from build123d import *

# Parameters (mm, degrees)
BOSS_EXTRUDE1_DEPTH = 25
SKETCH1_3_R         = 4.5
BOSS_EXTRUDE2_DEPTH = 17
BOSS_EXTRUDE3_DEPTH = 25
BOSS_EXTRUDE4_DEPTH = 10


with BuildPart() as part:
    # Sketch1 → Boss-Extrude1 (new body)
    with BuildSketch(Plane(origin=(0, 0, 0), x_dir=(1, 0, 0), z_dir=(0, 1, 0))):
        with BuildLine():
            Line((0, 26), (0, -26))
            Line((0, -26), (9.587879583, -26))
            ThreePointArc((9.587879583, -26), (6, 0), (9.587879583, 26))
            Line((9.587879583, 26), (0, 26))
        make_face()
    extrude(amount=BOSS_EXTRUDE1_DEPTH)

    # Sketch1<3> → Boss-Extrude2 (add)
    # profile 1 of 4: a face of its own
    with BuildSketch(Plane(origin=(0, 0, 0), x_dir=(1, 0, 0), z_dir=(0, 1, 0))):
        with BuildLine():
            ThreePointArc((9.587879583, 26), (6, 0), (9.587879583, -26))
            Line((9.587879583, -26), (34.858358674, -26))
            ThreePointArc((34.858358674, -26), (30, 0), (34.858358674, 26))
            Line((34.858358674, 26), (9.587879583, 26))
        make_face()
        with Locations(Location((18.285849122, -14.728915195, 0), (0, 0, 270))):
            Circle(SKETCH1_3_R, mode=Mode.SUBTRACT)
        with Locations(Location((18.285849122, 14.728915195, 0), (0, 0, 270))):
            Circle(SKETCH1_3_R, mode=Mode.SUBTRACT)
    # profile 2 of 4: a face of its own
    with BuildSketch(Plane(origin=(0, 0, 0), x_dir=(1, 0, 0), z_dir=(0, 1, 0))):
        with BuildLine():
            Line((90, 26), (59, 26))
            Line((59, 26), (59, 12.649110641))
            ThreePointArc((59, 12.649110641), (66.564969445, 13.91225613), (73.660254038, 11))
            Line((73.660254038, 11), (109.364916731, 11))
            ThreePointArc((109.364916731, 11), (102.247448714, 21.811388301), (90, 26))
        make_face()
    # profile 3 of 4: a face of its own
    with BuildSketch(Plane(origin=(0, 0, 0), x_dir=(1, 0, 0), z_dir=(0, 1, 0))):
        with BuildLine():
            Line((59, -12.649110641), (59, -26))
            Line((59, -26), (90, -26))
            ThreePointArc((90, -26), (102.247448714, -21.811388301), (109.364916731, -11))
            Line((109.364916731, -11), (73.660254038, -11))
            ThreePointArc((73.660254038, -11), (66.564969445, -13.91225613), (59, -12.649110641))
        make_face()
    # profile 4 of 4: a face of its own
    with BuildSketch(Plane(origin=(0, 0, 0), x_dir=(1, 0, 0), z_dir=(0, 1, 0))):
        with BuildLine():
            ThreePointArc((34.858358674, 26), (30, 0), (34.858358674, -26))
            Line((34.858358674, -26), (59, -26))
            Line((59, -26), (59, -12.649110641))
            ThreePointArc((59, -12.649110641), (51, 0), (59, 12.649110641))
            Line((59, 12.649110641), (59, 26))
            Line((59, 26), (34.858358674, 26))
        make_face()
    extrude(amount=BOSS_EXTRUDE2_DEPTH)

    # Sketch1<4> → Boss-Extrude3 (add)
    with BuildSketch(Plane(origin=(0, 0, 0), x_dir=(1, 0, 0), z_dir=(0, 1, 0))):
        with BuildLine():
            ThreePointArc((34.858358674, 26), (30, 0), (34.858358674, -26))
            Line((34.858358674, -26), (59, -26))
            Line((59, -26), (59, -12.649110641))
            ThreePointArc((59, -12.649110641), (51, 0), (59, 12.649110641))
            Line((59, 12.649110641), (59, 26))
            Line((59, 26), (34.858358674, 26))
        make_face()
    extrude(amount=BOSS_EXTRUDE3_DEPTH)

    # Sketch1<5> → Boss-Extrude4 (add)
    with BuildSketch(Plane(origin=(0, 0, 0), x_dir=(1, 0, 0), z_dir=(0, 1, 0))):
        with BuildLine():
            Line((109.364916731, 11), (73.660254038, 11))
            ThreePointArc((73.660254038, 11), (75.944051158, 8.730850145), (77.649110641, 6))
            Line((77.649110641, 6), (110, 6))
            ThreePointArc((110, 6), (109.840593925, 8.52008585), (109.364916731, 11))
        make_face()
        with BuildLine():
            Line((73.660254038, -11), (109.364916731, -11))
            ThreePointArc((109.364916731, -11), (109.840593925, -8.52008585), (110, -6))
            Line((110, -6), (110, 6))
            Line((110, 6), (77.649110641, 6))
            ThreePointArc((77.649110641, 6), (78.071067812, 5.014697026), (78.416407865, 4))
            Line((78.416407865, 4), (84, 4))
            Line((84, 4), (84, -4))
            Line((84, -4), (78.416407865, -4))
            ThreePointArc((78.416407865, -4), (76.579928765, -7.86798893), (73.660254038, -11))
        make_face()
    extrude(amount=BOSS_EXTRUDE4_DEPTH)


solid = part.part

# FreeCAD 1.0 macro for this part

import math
import FreeCAD as App
import Part
import Sketcher

V = App.Vector
Q = App.Units.Quantity

doc = App.newDocument("Part")
body = doc.addObject("PartDesign::Body", "Body")

sketch1 = body.newObject("Sketcher::SketchObject", "Sketch")
sketch1.AttachmentSupport = (doc.getObject("XZ_Plane"), [""])
sketch1.MapMode = "FlatFace"
sketch1.addGeometry([
    Part.LineSegment(V(0, -26, 0), V(0, 26, 0)),
    Part.LineSegment(V(0, 26, 0), V(9.58788, 26, 0)),
    Part.ArcOfCircle(Part.Circle(V(102, 0, 0), V(0, 0, 1), 96), math.radians(164.286139), math.radians(195.713861)),
    Part.LineSegment(V(9.58788, -26, 0), V(0, -26, 0)),
], False)
sketch1.addConstraint([
    Sketcher.Constraint("Coincident", 0, 2, 1, 1),
    Sketcher.Constraint("Coincident", 1, 2, 2, 1),
    Sketcher.Constraint("Coincident", 2, 2, 3, 1),
    Sketcher.Constraint("Coincident", 3, 2, 0, 1),
    Sketcher.Constraint("Vertical", 0),
    Sketcher.Constraint("Horizontal", 1),
    Sketcher.Constraint("Horizontal", 3),
    Sketcher.Constraint("Symmetric", 0, 2, 3, 2, -1, 1),
    Sketcher.Constraint("PointOnObject", 2, 3, -1),
    Sketcher.Constraint("Radius", 2, Q("96 mm")),
    Sketcher.Constraint("DistanceY", 0, 1, 0, 2, Q("52 mm")),
    Sketcher.Constraint("DistanceX", -1, 1, 2, 3, Q("102 mm")),
])
pad1 = body.newObject("PartDesign::Pad", "Pad")
pad1.Profile = sketch1
pad1.Length = 25
pad1.Reversed = True

sketch2 = body.newObject("Sketcher::SketchObject", "Sketch001")
sketch2.AttachmentSupport = (doc.getObject("XZ_Plane"), [""])
sketch2.MapMode = "FlatFace"
sketch2.addGeometry([
    Part.ArcOfCircle(Part.Circle(V(102, 0, 0), V(0, 0, 1), 96), math.radians(164.286139), math.radians(195.713861)),
    Part.LineSegment(V(9.58788, 26, 0), V(90, 26, 0)),
    Part.ArcOfCircle(Part.Circle(V(90, 6, 0), V(0, 0, 1), 20), math.radians(14.477512), math.radians(90)),
    Part.LineSegment(V(109.364917, 11, 0), V(73.660254, 11, 0)),
    Part.ArcOfCircle(Part.Circle(V(65, 0, 0), V(0, 0, 1), 14), math.radians(51.786789), math.radians(115.376934)),
    Part.ArcOfCircle(Part.Circle(V(65, 0, 0), V(0, 0, 1), 14), math.radians(115.376934), math.radians(244.623066)),
    Part.ArcOfCircle(Part.Circle(V(65, 0, 0), V(0, 0, 1), 14), math.radians(-115.376934), math.radians(-51.786789)),
    Part.LineSegment(V(73.660254, -11, 0), V(109.364917, -11, 0)),
    Part.ArcOfCircle(Part.Circle(V(90, -6, 0), V(0, 0, 1), 20), math.radians(-90), math.radians(-14.477512)),
    Part.LineSegment(V(90, -26, 0), V(9.58788, -26, 0)),
    Part.Circle(V(18.285849, 14.728915, 0), V(0, 0, 1), 4.5),
    Part.Circle(V(18.285849, -14.728915, 0), V(0, 0, 1), 4.5),
], False)
sketch2.addConstraint([
    Sketcher.Constraint("Coincident", 0, 1, 1, 1),
    Sketcher.Constraint("Tangent", 1, 2, 2, 2),
    Sketcher.Constraint("Coincident", 2, 1, 3, 1),
    Sketcher.Constraint("Coincident", 3, 2, 4, 1),
    Sketcher.Constraint("Tangent", 4, 2, 5, 1),
    Sketcher.Constraint("Tangent", 5, 2, 6, 1),
    Sketcher.Constraint("Coincident", 6, 2, 7, 1),
    Sketcher.Constraint("Coincident", 7, 2, 8, 2),
    Sketcher.Constraint("Tangent", 8, 1, 9, 1),
    Sketcher.Constraint("Coincident", 9, 2, 0, 2),
    Sketcher.Constraint("Horizontal", 1),
    Sketcher.Constraint("Horizontal", 3),
    Sketcher.Constraint("Horizontal", 7),
    Sketcher.Constraint("Horizontal", 9),
    Sketcher.Constraint("Coincident", 6, 3, 4, 3),
    Sketcher.Constraint("Equal", 2, 8),
    Sketcher.Constraint("Equal", 10, 11),
    Sketcher.Constraint("Symmetric", 2, 3, 8, 3, -1),
    Sketcher.Constraint("Symmetric", 10, 3, 11, 3, -1),
    Sketcher.Constraint("Symmetric", 4, 2, 5, 2, -1),
    Sketcher.Constraint("PointOnObject", 0, 3, -1),
    Sketcher.Constraint("Vertical", 3, 2, 6, 2),
    Sketcher.Constraint("Diameter", 10, Q("9 mm")),
    Sketcher.Constraint("Radius", 0, Q("96 mm")),
    Sketcher.Constraint("Radius", 2, Q("20 mm")),
    Sketcher.Constraint("Radius", 4, Q("14 mm")),
    Sketcher.Constraint("DistanceX", -1, 1, 0, 3, Q("102 mm")),
    Sketcher.Constraint("DistanceX", -1, 1, 2, 3, Q("90 mm")),
    Sketcher.Constraint("DistanceY", -1, 1, 2, 3, Q("6 mm")),
    Sketcher.Constraint("DistanceX", -1, 1, 4, 3, Q("65 mm")),
    Sketcher.Constraint("DistanceY", -1, 1, 2, 1, Q("11 mm")),
    Sketcher.Constraint("DistanceX", -1, 1, 4, 2, Q("59 mm")),
    Sketcher.Constraint("DistanceX", -1, 1, 10, 3, Q("18.285849 mm")),
    Sketcher.Constraint("DistanceY", 11, 3, 10, 3, Q("29.45783 mm")),
])
pad2 = body.newObject("PartDesign::Pad", "Pad001")
pad2.Profile = sketch2
pad2.Length = 17
pad2.Reversed = True

sketch3 = body.newObject("Sketcher::SketchObject", "Sketch002")
sketch3.AttachmentSupport = (doc.getObject("XZ_Plane"), [""])
sketch3.MapMode = "FlatFace"
sketch3.addGeometry([
    Part.ArcOfCircle(Part.Circle(V(102, 0, 0), V(0, 0, 1), 72), math.radians(158.831551), math.radians(201.168449)),
    Part.LineSegment(V(34.858359, 26, 0), V(59, 26, 0)),
    Part.LineSegment(V(59, 26, 0), V(59, 12.649111, 0)),
    Part.ArcOfCircle(Part.Circle(V(65, 0, 0), V(0, 0, 1), 14), math.radians(115.376934), math.radians(244.623066)),
    Part.LineSegment(V(59, -12.649111, 0), V(59, -26, 0)),
    Part.LineSegment(V(59, -26, 0), V(34.858359, -26, 0)),
], False)
sketch3.addConstraint([
    Sketcher.Constraint("Coincident", 0, 1, 1, 1),
    Sketcher.Constraint("Coincident", 1, 2, 2, 1),
    Sketcher.Constraint("Coincident", 2, 2, 3, 1),
    Sketcher.Constraint("Coincident", 3, 2, 4, 1),
    Sketcher.Constraint("Coincident", 4, 2, 5, 1),
    Sketcher.Constraint("Coincident", 5, 2, 0, 2),
    Sketcher.Constraint("Horizontal", 1),
    Sketcher.Constraint("Vertical", 2),
    Sketcher.Constraint("Vertical", 4),
    Sketcher.Constraint("Horizontal", 5),
    Sketcher.Constraint("Symmetric", 2, 2, 3, 2, -1),
    Sketcher.Constraint("Symmetric", 0, 1, 5, 2, -1),
    Sketcher.Constraint("Radius", 0, Q("72 mm")),
    Sketcher.Constraint("Radius", 3, Q("14 mm")),
    Sketcher.Constraint("DistanceX", -1, 1, 0, 3, Q("102 mm")),
    Sketcher.Constraint("DistanceX", -1, 1, 3, 3, Q("65 mm")),
    Sketcher.Constraint("DistanceY", -1, 1, 0, 1, Q("26 mm")),
    Sketcher.Constraint("DistanceX", -1, 1, 1, 2, Q("59 mm")),
])
pad3 = body.newObject("PartDesign::Pad", "Pad002")
pad3.Profile = sketch3
pad3.Length = 25
pad3.Reversed = True

sketch4 = body.newObject("Sketcher::SketchObject", "Sketch003")
sketch4.AttachmentSupport = (doc.getObject("XZ_Plane"), [""])
sketch4.MapMode = "FlatFace"
sketch4.addGeometry([
    Part.LineSegment(V(109.364917, -11, 0), V(73.660254, -11, 0)),
    Part.ArcOfCircle(Part.Circle(V(65, 0, 0), V(0, 0, 1), 14), math.radians(-51.786789), math.radians(-25.376934)),
    Part.ArcOfCircle(Part.Circle(V(65, 0, 0), V(0, 0, 1), 14), math.radians(-25.376934), math.radians(-16.60155)),
    Part.LineSegment(V(78.416408, -4, 0), V(84, -4, 0)),
    Part.LineSegment(V(84, -4, 0), V(84, 4, 0)),
    Part.LineSegment(V(84, 4, 0), V(78.416408, 4, 0)),
    Part.ArcOfCircle(Part.Circle(V(65, 0, 0), V(0, 0, 1), 14), math.radians(16.60155), math.radians(51.786789)),
    Part.LineSegment(V(73.660254, 11, 0), V(109.364917, 11, 0)),
    Part.ArcOfCircle(Part.Circle(V(90, 6, 0), V(0, 0, 1), 20), math.radians(0), math.radians(14.477512)),
    Part.LineSegment(V(110, 6, 0), V(110, -6, 0)),
    Part.ArcOfCircle(Part.Circle(V(90, -6, 0), V(0, 0, 1), 20), math.radians(-14.477512), math.radians(0)),
], False)
sketch4.addConstraint([
    Sketcher.Constraint("Coincident", 0, 2, 1, 1),
    Sketcher.Constraint("Tangent", 1, 2, 2, 1),
    Sketcher.Constraint("Coincident", 2, 2, 3, 1),
    Sketcher.Constraint("Coincident", 3, 2, 4, 1),
    Sketcher.Constraint("Coincident", 4, 2, 5, 1),
    Sketcher.Constraint("Coincident", 5, 2, 6, 1),
    Sketcher.Constraint("Coincident", 6, 2, 7, 1),
    Sketcher.Constraint("Coincident", 7, 2, 8, 2),
    Sketcher.Constraint("Tangent", 8, 1, 9, 1),
    Sketcher.Constraint("Tangent", 9, 2, 10, 2),
    Sketcher.Constraint("Coincident", 10, 1, 0, 1),
    Sketcher.Constraint("Horizontal", 0),
    Sketcher.Constraint("Horizontal", 3),
    Sketcher.Constraint("Vertical", 4),
    Sketcher.Constraint("Horizontal", 5),
    Sketcher.Constraint("Horizontal", 7),
    Sketcher.Constraint("Vertical", 9),
    Sketcher.Constraint("Coincident", 6, 3, 1, 3),
    Sketcher.Constraint("Equal", 1, 2),
    Sketcher.Constraint("Equal", 2, 6),
    Sketcher.Constraint("Equal", 8, 10),
    Sketcher.Constraint("Symmetric", 2, 2, 5, 2, -1),
    Sketcher.Constraint("Symmetric", 7, 2, 10, 1, -1),
    Sketcher.Constraint("Horizontal", 10, 3, 1, 2),
    Sketcher.Constraint("Radius", 1, Q("14 mm")),
    Sketcher.Constraint("Radius", 8, Q("20 mm")),
    Sketcher.Constraint("DistanceY", 4, 1, 4, 2, Q("8 mm")),
    Sketcher.Constraint("DistanceY", 9, 2, 9, 1, Q("12 mm")),
    Sketcher.Constraint("DistanceX", -1, 1, 1, 3, Q("65 mm")),
    Sketcher.Constraint("DistanceX", -1, 1, 8, 3, Q("90 mm")),
    Sketcher.Constraint("DistanceY", 0, 2, -1, 1, Q("11 mm")),
    Sketcher.Constraint("DistanceX", -1, 1, 3, 2, Q("84 mm")),
])
pad4 = body.newObject("PartDesign::Pad", "Pad003")
pad4.Profile = sketch4
pad4.Length = 10
pad4.Reversed = True

doc.recompute()
